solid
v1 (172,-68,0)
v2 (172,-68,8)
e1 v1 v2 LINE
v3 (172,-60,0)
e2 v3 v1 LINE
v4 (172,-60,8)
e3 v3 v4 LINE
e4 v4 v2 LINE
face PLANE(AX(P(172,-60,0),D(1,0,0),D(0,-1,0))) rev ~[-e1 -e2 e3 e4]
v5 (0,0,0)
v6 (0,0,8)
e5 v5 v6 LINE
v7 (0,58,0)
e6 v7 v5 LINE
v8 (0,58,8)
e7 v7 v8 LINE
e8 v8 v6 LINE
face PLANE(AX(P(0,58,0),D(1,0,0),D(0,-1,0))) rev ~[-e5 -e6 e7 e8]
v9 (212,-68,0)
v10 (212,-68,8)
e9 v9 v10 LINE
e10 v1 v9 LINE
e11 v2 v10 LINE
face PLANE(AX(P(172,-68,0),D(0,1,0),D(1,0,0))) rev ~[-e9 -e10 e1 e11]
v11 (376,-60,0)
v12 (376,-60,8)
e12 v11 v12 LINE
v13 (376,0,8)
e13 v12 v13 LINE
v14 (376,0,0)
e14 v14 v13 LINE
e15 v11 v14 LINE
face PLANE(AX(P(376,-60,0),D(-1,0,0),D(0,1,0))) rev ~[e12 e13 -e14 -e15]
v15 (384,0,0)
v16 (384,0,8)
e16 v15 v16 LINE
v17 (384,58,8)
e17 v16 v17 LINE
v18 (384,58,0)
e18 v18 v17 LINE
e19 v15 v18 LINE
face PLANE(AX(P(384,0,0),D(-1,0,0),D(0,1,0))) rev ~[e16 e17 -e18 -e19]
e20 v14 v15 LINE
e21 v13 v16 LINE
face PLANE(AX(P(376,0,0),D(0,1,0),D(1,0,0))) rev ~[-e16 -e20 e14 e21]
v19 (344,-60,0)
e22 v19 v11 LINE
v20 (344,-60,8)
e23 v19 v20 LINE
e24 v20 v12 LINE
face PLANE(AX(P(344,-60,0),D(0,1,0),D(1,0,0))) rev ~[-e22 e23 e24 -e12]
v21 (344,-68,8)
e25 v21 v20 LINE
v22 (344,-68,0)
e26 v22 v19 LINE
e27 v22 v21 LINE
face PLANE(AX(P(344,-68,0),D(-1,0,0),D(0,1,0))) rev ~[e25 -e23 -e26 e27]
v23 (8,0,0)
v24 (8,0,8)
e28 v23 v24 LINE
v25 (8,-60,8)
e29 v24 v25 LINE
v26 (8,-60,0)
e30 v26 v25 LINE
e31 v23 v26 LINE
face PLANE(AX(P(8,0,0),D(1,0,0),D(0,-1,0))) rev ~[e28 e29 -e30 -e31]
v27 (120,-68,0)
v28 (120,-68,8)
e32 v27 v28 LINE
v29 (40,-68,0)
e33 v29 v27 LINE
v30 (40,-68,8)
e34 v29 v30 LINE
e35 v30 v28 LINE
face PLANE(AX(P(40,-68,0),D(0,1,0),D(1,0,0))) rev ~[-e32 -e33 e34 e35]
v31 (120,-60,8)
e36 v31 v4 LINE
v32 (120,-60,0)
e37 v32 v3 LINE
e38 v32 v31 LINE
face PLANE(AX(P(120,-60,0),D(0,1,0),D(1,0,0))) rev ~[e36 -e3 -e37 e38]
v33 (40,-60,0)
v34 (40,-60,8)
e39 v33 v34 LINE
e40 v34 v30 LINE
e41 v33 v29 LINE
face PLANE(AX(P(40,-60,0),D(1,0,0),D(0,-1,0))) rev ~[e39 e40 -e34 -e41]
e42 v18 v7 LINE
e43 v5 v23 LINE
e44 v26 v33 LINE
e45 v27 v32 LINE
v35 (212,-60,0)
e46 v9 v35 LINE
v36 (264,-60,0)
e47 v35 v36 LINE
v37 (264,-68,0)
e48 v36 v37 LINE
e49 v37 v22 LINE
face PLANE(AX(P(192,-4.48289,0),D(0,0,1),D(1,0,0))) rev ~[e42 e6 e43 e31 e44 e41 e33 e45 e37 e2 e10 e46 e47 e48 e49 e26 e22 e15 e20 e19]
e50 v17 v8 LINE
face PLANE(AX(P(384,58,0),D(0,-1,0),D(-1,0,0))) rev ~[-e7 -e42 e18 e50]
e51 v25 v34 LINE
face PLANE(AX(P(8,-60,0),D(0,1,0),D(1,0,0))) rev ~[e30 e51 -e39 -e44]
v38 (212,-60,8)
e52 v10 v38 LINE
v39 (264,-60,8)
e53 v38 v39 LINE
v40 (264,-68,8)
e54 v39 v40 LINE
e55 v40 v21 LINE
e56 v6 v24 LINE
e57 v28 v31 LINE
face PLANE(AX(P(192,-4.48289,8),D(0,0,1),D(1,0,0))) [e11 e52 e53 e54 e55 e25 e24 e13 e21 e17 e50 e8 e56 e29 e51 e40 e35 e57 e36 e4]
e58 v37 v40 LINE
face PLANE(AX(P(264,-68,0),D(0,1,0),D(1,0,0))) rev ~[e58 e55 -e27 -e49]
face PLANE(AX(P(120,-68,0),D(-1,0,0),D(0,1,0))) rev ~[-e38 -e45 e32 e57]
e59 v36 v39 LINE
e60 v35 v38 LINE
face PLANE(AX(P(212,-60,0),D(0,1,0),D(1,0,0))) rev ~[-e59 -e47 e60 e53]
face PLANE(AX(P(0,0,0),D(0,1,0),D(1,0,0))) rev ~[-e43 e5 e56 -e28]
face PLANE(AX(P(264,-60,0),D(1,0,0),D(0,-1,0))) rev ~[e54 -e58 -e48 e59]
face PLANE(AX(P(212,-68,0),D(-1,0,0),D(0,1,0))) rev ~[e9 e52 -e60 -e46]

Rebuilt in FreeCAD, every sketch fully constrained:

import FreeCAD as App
import Part
import Sketcher
from FreeCAD import Vector

doc = App.newDocument("Part")
params = doc.addObject("Spreadsheet::Sheet", "Params")
for row, (alias, value) in enumerate([
    ("sketch1_width", "8 mm"),
    ("sketch1_width2", "32 mm"),
    ("sketch1_width3", "80 mm"),
    ("sketch1_width4", "52 mm"),
    ("sketch1_width5", "40 mm"),
    ("pad1_length", "8 mm"),
], start=1):
    params.set(f"A{row}", alias)
    params.set(f"B{row}", "=" + value)
    params.setAlias(f"B{row}", alias)

body = doc.addObject("PartDesign::Body", "Body")

sketch1 = body.newObject("Sketcher::SketchObject", "Sketch")
sketch1.AttachmentSupport = (doc.getObject("XY_Plane"), [""])
sketch1.MapMode = "FlatFace"
sketch1.addGeometry(Part.LineSegment(Vector(0, 58, 0), Vector(0, 0, 0)), False)
sketch1.addGeometry(Part.LineSegment(Vector(0, 0, 0), Vector(8, 0, 0)), False)
sketch1.addGeometry(Part.LineSegment(Vector(8, 0, 0), Vector(8, -60, 0)), False)
sketch1.addGeometry(Part.LineSegment(Vector(8, -60, 0), Vector(40, -60, 0)), False)
sketch1.addGeometry(Part.LineSegment(Vector(40, -60, 0), Vector(40, -68, 0)), False)
sketch1.addGeometry(Part.LineSegment(Vector(40, -68, 0), Vector(120, -68, 0)), False)
sketch1.addGeometry(Part.LineSegment(Vector(120, -68, 0), Vector(120, -60, 0)), False)
sketch1.addGeometry(Part.LineSegment(Vector(120, -60, 0), Vector(172, -60, 0)), False)
sketch1.addGeometry(Part.LineSegment(Vector(172, -60, 0), Vector(172, -68, 0)), False)
sketch1.addGeometry(Part.LineSegment(Vector(172, -68, 0), Vector(212, -68, 0)), False)
sketch1.addGeometry(Part.LineSegment(Vector(212, -68, 0), Vector(212, -60, 0)), False)
sketch1.addGeometry(Part.LineSegment(Vector(212, -60, 0), Vector(264, -60, 0)), False)
sketch1.addGeometry(Part.LineSegment(Vector(264, -60, 0), Vector(264, -68, 0)), False)
sketch1.addGeometry(Part.LineSegment(Vector(264, -68, 0), Vector(344, -68, 0)), False)
sketch1.addGeometry(Part.LineSegment(Vector(344, -68, 0), Vector(344, -60, 0)), False)
sketch1.addGeometry(Part.LineSegment(Vector(344, -60, 0), Vector(376, -60, 0)), False)
sketch1.addGeometry(Part.LineSegment(Vector(376, -60, 0), Vector(376, 0, 0)), False)
sketch1.addGeometry(Part.LineSegment(Vector(376, 0, 0), Vector(384, 0, 0)), False)
sketch1.addGeometry(Part.LineSegment(Vector(384, 0, 0), Vector(384, 58, 0)), False)
sketch1.addGeometry(Part.LineSegment(Vector(384, 58, 0), Vector(0, 58, 0)), False)
sketch1.addConstraint(Sketcher.Constraint("Coincident", 0, 2, 1, 1))
sketch1.addConstraint(Sketcher.Constraint("Coincident", 1, 2, 2, 1))
sketch1.addConstraint(Sketcher.Constraint("Coincident", 2, 2, 3, 1))
sketch1.addConstraint(Sketcher.Constraint("Coincident", 3, 2, 4, 1))
sketch1.addConstraint(Sketcher.Constraint("Coincident", 4, 2, 5, 1))
sketch1.addConstraint(Sketcher.Constraint("Coincident", 5, 2, 6, 1))
sketch1.addConstraint(Sketcher.Constraint("Coincident", 6, 2, 7, 1))
sketch1.addConstraint(Sketcher.Constraint("Coincident", 7, 2, 8, 1))
sketch1.addConstraint(Sketcher.Constraint("Coincident", 8, 2, 9, 1))
sketch1.addConstraint(Sketcher.Constraint("Coincident", 9, 2, 10, 1))
sketch1.addConstraint(Sketcher.Constraint("Coincident", 10, 2, 11, 1))
sketch1.addConstraint(Sketcher.Constraint("Coincident", 11, 2, 12, 1))
sketch1.addConstraint(Sketcher.Constraint("Coincident", 12, 2, 13, 1))
sketch1.addConstraint(Sketcher.Constraint("Coincident", 13, 2, 14, 1))
sketch1.addConstraint(Sketcher.Constraint("Coincident", 14, 2, 15, 1))
sketch1.addConstraint(Sketcher.Constraint("Coincident", 15, 2, 16, 1))
sketch1.addConstraint(Sketcher.Constraint("Coincident", 16, 2, 17, 1))
sketch1.addConstraint(Sketcher.Constraint("Coincident", 17, 2, 18, 1))
sketch1.addConstraint(Sketcher.Constraint("Coincident", 18, 2, 19, 1))
sketch1.addConstraint(Sketcher.Constraint("Coincident", 19, 2, 0, 1))
sketch1.addConstraint(Sketcher.Constraint("Vertical", 0))
sketch1.addConstraint(Sketcher.Constraint("Horizontal", 1))
sketch1.addConstraint(Sketcher.Constraint("Vertical", 2))
sketch1.addConstraint(Sketcher.Constraint("Horizontal", 3))
sketch1.addConstraint(Sketcher.Constraint("Vertical", 4))
sketch1.addConstraint(Sketcher.Constraint("Horizontal", 5))
sketch1.addConstraint(Sketcher.Constraint("Vertical", 6))
sketch1.addConstraint(Sketcher.Constraint("Horizontal", 7))
sketch1.addConstraint(Sketcher.Constraint("Vertical", 8))
sketch1.addConstraint(Sketcher.Constraint("Horizontal", 9))
sketch1.addConstraint(Sketcher.Constraint("Vertical", 10))
sketch1.addConstraint(Sketcher.Constraint("Horizontal", 11))
sketch1.addConstraint(Sketcher.Constraint("Vertical", 12))
sketch1.addConstraint(Sketcher.Constraint("Horizontal", 13))
sketch1.addConstraint(Sketcher.Constraint("Vertical", 14))
sketch1.addConstraint(Sketcher.Constraint("Horizontal", 15))
sketch1.addConstraint(Sketcher.Constraint("Vertical", 16))
sketch1.addConstraint(Sketcher.Constraint("Horizontal", 17))
sketch1.addConstraint(Sketcher.Constraint("Vertical", 18))
sketch1.addConstraint(Sketcher.Constraint("Horizontal", 19))
sketch1.addConstraint(Sketcher.Constraint("Coincident", 0, 2, -1, 1))
sketch1.addConstraint(Sketcher.Constraint("PointOnObject", 16, 2, -1))
sketch1.addConstraint(Sketcher.Constraint("Horizontal", 3, 2, 6, 2))
sketch1.addConstraint(Sketcher.Constraint("Horizontal", 5, 2, 8, 2))
sketch1.addConstraint(Sketcher.Constraint("Horizontal", 7, 2, 10, 2))
sketch1.addConstraint(Sketcher.Constraint("Horizontal", 9, 2, 12, 2))
sketch1.addConstraint(Sketcher.Constraint("Horizontal", 11, 2, 14, 2))
sketch1.addConstraint(Sketcher.Constraint("Equal", 7, 11))
sketch1.addConstraint(Sketcher.Constraint("Equal", 5, 13))
sketch1.addConstraint(Sketcher.Constraint("Equal", 3, 15))
sketch1.addConstraint(Sketcher.Constraint("Equal", 1, 17))
sketch1.addConstraint(Sketcher.Constraint("Equal", 17, 4))
sketch1.addConstraint(Sketcher.Constraint("DistanceX", 1, 1, 1, 2, 8.0))
sketch1.addConstraint(Sketcher.Constraint("DistanceX", 3, 1, 3, 2, 32.0))
sketch1.addConstraint(Sketcher.Constraint("DistanceX", 5, 1, 5, 2, 80.0))
sketch1.addConstraint(Sketcher.Constraint("DistanceX", 7, 1, 7, 2, 52.0))
sketch1.addConstraint(Sketcher.Constraint("DistanceX", 9, 1, 9, 2, 40.0))
sketch1.addConstraint(Sketcher.Constraint("DistanceY", 0, 2, 0, 1, 58.0))
sketch1.addConstraint(Sketcher.Constraint("DistanceY", 2, 2, 2, 1, 60.0))
sketch1.setExpression("Constraints[52]", "Params.sketch1_width")
sketch1.setExpression("Constraints[53]", "Params.sketch1_width2")
sketch1.setExpression("Constraints[54]", "Params.sketch1_width3")
sketch1.setExpression("Constraints[55]", "Params.sketch1_width4")
sketch1.setExpression("Constraints[56]", "Params.sketch1_width5")
pad1 = body.newObject("PartDesign::Pad", "Pad")
pad1.Profile = sketch1
pad1.setExpression("Length", "Params.pad1_length")

doc.recompute()
